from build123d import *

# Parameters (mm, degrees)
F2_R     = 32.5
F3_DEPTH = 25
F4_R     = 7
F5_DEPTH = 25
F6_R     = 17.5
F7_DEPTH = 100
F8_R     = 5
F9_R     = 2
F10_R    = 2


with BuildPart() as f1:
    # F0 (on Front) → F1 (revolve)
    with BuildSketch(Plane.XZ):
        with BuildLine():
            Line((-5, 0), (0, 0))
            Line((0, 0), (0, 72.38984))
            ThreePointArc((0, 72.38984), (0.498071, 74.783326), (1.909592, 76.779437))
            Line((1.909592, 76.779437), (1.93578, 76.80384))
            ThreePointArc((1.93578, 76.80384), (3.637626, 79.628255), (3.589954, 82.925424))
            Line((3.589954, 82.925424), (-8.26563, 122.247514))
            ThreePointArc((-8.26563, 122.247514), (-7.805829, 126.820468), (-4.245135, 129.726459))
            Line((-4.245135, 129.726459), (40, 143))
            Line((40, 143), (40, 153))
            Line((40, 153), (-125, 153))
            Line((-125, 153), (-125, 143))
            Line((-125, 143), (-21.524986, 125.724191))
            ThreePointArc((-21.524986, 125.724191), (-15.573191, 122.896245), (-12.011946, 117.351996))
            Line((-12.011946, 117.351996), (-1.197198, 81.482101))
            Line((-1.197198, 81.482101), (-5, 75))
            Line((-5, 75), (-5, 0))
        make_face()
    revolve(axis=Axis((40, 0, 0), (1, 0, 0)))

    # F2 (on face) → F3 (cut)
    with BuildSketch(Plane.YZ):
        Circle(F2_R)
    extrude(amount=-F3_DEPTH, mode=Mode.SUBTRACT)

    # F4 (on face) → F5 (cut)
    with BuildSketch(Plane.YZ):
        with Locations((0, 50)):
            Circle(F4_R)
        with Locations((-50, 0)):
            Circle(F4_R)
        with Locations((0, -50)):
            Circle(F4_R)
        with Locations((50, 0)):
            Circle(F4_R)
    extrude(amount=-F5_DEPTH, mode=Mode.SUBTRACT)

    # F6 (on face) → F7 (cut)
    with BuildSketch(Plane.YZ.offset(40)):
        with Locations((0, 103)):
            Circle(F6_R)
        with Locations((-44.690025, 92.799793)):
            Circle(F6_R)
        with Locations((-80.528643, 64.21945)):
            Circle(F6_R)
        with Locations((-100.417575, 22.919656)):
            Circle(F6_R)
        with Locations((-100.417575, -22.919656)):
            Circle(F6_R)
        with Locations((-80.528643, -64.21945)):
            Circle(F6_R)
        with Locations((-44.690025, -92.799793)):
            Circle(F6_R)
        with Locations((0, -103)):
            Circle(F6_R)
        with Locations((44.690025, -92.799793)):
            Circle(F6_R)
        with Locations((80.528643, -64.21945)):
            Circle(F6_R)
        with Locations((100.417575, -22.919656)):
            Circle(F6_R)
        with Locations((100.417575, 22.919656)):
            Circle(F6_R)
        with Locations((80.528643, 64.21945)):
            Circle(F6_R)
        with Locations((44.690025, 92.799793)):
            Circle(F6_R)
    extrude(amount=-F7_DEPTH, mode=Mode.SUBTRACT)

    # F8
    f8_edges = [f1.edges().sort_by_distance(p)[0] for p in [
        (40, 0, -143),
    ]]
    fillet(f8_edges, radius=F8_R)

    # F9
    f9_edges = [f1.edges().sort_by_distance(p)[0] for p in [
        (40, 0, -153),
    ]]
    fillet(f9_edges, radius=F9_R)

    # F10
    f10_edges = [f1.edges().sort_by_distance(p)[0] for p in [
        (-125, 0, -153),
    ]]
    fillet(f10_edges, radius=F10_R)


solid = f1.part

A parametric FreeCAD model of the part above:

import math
import FreeCAD as App
import Part
import Sketcher


def edges_at(feature, points):
    """Names of the edges that pass closest to the given points."""
    edges = feature.Shape.Edges
    near = lambda p: min(range(len(edges)), key=lambda i: edges[i].distToShape(Part.Vertex(*p))[0])
    return sorted({f"Edge{near(p) + 1}" for p in points})

doc = App.newDocument("Part")
body = doc.addObject("PartDesign::Body", "Body")

sketch1 = body.newObject("Sketcher::SketchObject", "Sketch")
sketch1.AttachmentSupport = (doc.getObject("XZ_Plane"), [""])
sketch1.MapMode = "FlatFace"
sketch1.addGeometry(Part.LineSegment(App.Vector(-5, 0, 0), App.Vector(0, 0, 0)), False)
sketch1.addGeometry(Part.LineSegment(App.Vector(0, 0, 0), App.Vector(0, 72.38984, 0)), False)
sketch1.addGeometry(Part.ArcOfCircle(Part.Circle(App.Vector(6.000002, 72.389839, 0), App.Vector(0, 0, 1), 6.000002), math.radians(132.979352), math.radians(179.999993)), False)
sketch1.addGeometry(Part.LineSegment(App.Vector(1.909592, 76.779437, 0), App.Vector(1.93578, 76.80384, 0)), False)
sketch1.addGeometry(Part.ArcOfCircle(Part.Circle(App.Vector(-2.154628, 81.193437, 0), App.Vector(0, 0, 1), 6), math.radians(-47.020658), math.radians(16.778019)), False)
sketch1.addGeometry(Part.LineSegment(App.Vector(3.589954, 82.925424, 0), App.Vector(-8.26563, 122.247514, 0)), False)
sketch1.addGeometry(Part.ArcOfCircle(Part.Circle(App.Vector(-2.521048, 123.979501, 0), App.Vector(0, 0, 1), 6), math.radians(106.699237), math.radians(196.778022)), False)
sketch1.addGeometry(Part.LineSegment(App.Vector(-4.245135, 129.726459, 0), App.Vector(40, 143, 0)), False)
sketch1.addGeometry(Part.LineSegment(App.Vector(40, 143, 0), App.Vector(40, 153, 0)), False)
sketch1.addGeometry(Part.LineSegment(App.Vector(40, 153, 0), App.Vector(-125, 153, 0)), False)
sketch1.addGeometry(Part.LineSegment(App.Vector(-125, 153, 0), App.Vector(-125, 143, 0)), False)
sketch1.addGeometry(Part.LineSegment(App.Vector(-125, 143, 0), App.Vector(-21.524986, 125.724191, 0)), False)
sketch1.addGeometry(Part.ArcOfCircle(Part.Circle(App.Vector(-23.501109, 113.88802, 0), App.Vector(0, 0, 1), 12), math.radians(16.778027), math.radians(80.521532)), False)
sketch1.addGeometry(Part.LineSegment(App.Vector(-12.011946, 117.351996, 0), App.Vector(-1.197198, 81.482101, 0)), False)
sketch1.addGeometry(Part.LineSegment(App.Vector(-1.197198, 81.482101, 0), App.Vector(-5, 75, 0)), False)
sketch1.addGeometry(Part.LineSegment(App.Vector(-5, 75, 0), App.Vector(-5, 0, 0)), False)
sketch1.addConstraint(Sketcher.Constraint("Coincident", 0, 2, 1, 1))
sketch1.addConstraint(Sketcher.Constraint("Tangent", 1, 2, 2, 2))
sketch1.addConstraint(Sketcher.Constraint("Tangent", 2, 1, 3, 1))
sketch1.addConstraint(Sketcher.Constraint("Tangent", 3, 2, 4, 1))
sketch1.addConstraint(Sketcher.Constraint("Tangent", 4, 2, 5, 1))
sketch1.addConstraint(Sketcher.Constraint("Tangent", 5, 2, 6, 2))
sketch1.addConstraint(Sketcher.Constraint("Tangent", 6, 1, 7, 1))
sketch1.addConstraint(Sketcher.Constraint("Coincident", 7, 2, 8, 1))
sketch1.addConstraint(Sketcher.Constraint("Coincident", 8, 2, 9, 1))
sketch1.addConstraint(Sketcher.Constraint("Coincident", 9, 2, 10, 1))
sketch1.addConstraint(Sketcher.Constraint("Coincident", 10, 2, 11, 1))
sketch1.addConstraint(Sketcher.Constraint("Tangent", 11, 2, 12, 2))
sketch1.addConstraint(Sketcher.Constraint("Tangent", 12, 1, 13, 1))
sketch1.addConstraint(Sketcher.Constraint("Coincident", 13, 2, 14, 1))
sketch1.addConstraint(Sketcher.Constraint("Coincident", 14, 2, 15, 1))
sketch1.addConstraint(Sketcher.Constraint("Coincident", 15, 2, 0, 1))
sketch1.addConstraint(Sketcher.Constraint("Horizontal", 0))
sketch1.addConstraint(Sketcher.Constraint("Vertical", 1))
sketch1.addConstraint(Sketcher.Constraint("Vertical", 8))
sketch1.addConstraint(Sketcher.Constraint("Horizontal", 9))
sketch1.addConstraint(Sketcher.Constraint("Vertical", 10))
sketch1.addConstraint(Sketcher.Constraint("Vertical", 15))
sketch1.addConstraint(Sketcher.Constraint("Coincident", 0, 2, -1, 1))
sketch1.addConstraint(Sketcher.Constraint("Equal", 2, 4))
sketch1.addConstraint(Sketcher.Constraint("Equal", 4, 6))
sketch1.addConstraint(Sketcher.Constraint("Parallel", 5, 13))
sketch1.addConstraint(Sketcher.Constraint("Horizontal", 7, 2, 10, 2))
sketch1.addConstraint(Sketcher.Constraint("Radius", 2, 6.000002))
sketch1.addConstraint(Sketcher.Constraint("Radius", 12, 12.0))
sketch1.addConstraint(Sketcher.Constraint("DistanceX", 0, 1, 0, 2, 5.0))
sketch1.addConstraint(Sketcher.Constraint("DistanceX", 9, 2, 9, 1, 165.0))
sketch1.addConstraint(Sketcher.Constraint("DistanceY", 8, 1, 8, 2, 10.0))
sketch1.addConstraint(Sketcher.Constraint("DistanceY", 15, 2, 15, 1, 75.0))
sketch1.addConstraint(Sketcher.Constraint("DistanceX", -1, 1, 7, 2, 40.0))
sketch1.addConstraint(Sketcher.Constraint("DistanceY", -1, 1, 7, 2, 143.0))
sketch1.addConstraint(Sketcher.Constraint("DistanceY", 2, 1, 4, 3, 4.414))
sketch1.addConstraint(Sketcher.Constraint("DistanceY", 1, 1, 1, 2, 72.38984))
sketch1.addConstraint(Sketcher.Constraint("DistanceY", -1, 1, 6, 3, 123.979501))
sketch1.addConstraint(Sketcher.Constraint("DistanceY", -1, 1, 13, 2, 81.482101))
sketch1.addConstraint(Sketcher.Constraint("DistanceX", 12, 3, 2, 1, 25.410701))
sketch1.addConstraint(Sketcher.Constraint("DistanceX", 14, 2, 13, 2, 3.802802))
sketch1.addConstraint(Sketcher.Constraint("Distance", 13, 37.464759))
sketch1.addConstraint(Sketcher.Constraint("DistanceX", 6, 3, -1, 1, 2.521048))
revolution = body.newObject("PartDesign::Revolution", "Revolution")
revolution.Profile = sketch1
revolution.ReferenceAxis = (sketch1, ["H_Axis"])
revolution.Angle = 360

sketch2 = body.newObject("Sketcher::SketchObject", "Sketch001")
sketch2.AttachmentSupport = (doc.getObject("YZ_Plane"), [""])
sketch2.MapMode = "FlatFace"
sketch2.addGeometry(Part.Circle(App.Vector(0, 0, 0), App.Vector(0, 0, 1), 32.5), False)
sketch2.addConstraint(Sketcher.Constraint("Coincident", 0, 3, -1, 1))
sketch2.addConstraint(Sketcher.Constraint("Diameter", 0, 65.0))
pocket1 = body.newObject("PartDesign::Pocket", "Pocket")
pocket1.Profile = sketch2
pocket1.Length = 25

sketch3 = body.newObject("Sketcher::SketchObject", "Sketch002")
sketch3.AttachmentSupport = (doc.getObject("YZ_Plane"), [""])
sketch3.MapMode = "FlatFace"
sketch3.addGeometry(Part.Circle(App.Vector(0, 50, 0), App.Vector(0, 0, 1), 7), False)
sketch3.addGeometry(Part.Circle(App.Vector(-50, 0, 0), App.Vector(0, 0, 1), 7), False)
sketch3.addGeometry(Part.Circle(App.Vector(0, -50, 0), App.Vector(0, 0, 1), 7), False)
sketch3.addGeometry(Part.Circle(App.Vector(50, 0, 0), App.Vector(0, 0, 1), 7), False)
sketch3.addConstraint(Sketcher.Constraint("Equal", 0, 1))
sketch3.addConstraint(Sketcher.Constraint("Equal", 1, 2))
sketch3.addConstraint(Sketcher.Constraint("Equal", 2, 3))
sketch3.addConstraint(Sketcher.Constraint("Symmetric", 0, 3, 2, 3, -1, 1))
sketch3.addConstraint(Sketcher.Constraint("Symmetric", 1, 3, 3, 3, -1, 1))
sketch3.addConstraint(Sketcher.Constraint("PointOnObject", 0, 3, -2))
sketch3.addConstraint(Sketcher.Constraint("PointOnObject", 1, 3, -1))
sketch3.addConstraint(Sketcher.Constraint("Diameter", 0, 14.0))
sketch3.addConstraint(Sketcher.Constraint("DistanceY", -1, 1, 0, 3, 50.0))
sketch3.addConstraint(Sketcher.Constraint("DistanceX", 1, 3, -1, 1, 50.0))
pocket2 = body.newObject("PartDesign::Pocket", "Pocket001")
pocket2.Profile = sketch3
pocket2.Length = 25

sketch4 = body.newObject("Sketcher::SketchObject", "Sketch003")
sketch4.AttachmentSupport = (doc.getObject("YZ_Plane"), [""])
sketch4.MapMode = "FlatFace"
sketch4.AttachmentOffset = App.Placement(App.Vector(0, 0, 40), App.Rotation())
sketch4.addGeometry(Part.Circle(App.Vector(0, 103, 0), App.Vector(0, 0, 1), 17.5), False)
sketch4.addGeometry(Part.Circle(App.Vector(-44.690025, 92.799793, 0), App.Vector(0, 0, 1), 17.5), False)
sketch4.addGeometry(Part.Circle(App.Vector(-80.528643, 64.21945, 0), App.Vector(0, 0, 1), 17.5), False)
sketch4.addGeometry(Part.Circle(App.Vector(-100.417575, 22.919656, 0), App.Vector(0, 0, 1), 17.5), False)
sketch4.addGeometry(Part.Circle(App.Vector(-100.417575, -22.919656, 0), App.Vector(0, 0, 1), 17.5), False)
sketch4.addGeometry(Part.Circle(App.Vector(-80.528643, -64.21945, 0), App.Vector(0, 0, 1), 17.5), False)
sketch4.addGeometry(Part.Circle(App.Vector(-44.690025, -92.799793, 0), App.Vector(0, 0, 1), 17.5), False)
sketch4.addGeometry(Part.Circle(App.Vector(0, -103, 0), App.Vector(0, 0, 1), 17.5), False)
sketch4.addGeometry(Part.Circle(App.Vector(44.690025, -92.799793, 0), App.Vector(0, 0, 1), 17.5), False)
sketch4.addGeometry(Part.Circle(App.Vector(80.528643, -64.21945, 0), App.Vector(0, 0, 1), 17.5), False)
sketch4.addGeometry(Part.Circle(App.Vector(100.417575, -22.919656, 0), App.Vector(0, 0, 1), 17.5), False)
sketch4.addGeometry(Part.Circle(App.Vector(100.417575, 22.919656, 0), App.Vector(0, 0, 1), 17.5), False)
sketch4.addGeometry(Part.Circle(App.Vector(80.528643, 64.21945, 0), App.Vector(0, 0, 1), 17.5), False)
sketch4.addGeometry(Part.Circle(App.Vector(44.690025, 92.799793, 0), App.Vector(0, 0, 1), 17.5), False)
sketch4.addConstraint(Sketcher.Constraint("Equal", 0, 1))
sketch4.addConstraint(Sketcher.Constraint("Equal", 1, 2))
sketch4.addConstraint(Sketcher.Constraint("Equal", 2, 3))
sketch4.addConstraint(Sketcher.Constraint("Equal", 3, 4))
sketch4.addConstraint(Sketcher.Constraint("Equal", 4, 5))
sketch4.addConstraint(Sketcher.Constraint("Equal", 5, 6))
sketch4.addConstraint(Sketcher.Constraint("Equal", 6, 7))
sketch4.addConstraint(Sketcher.Constraint("Equal", 7, 8))
sketch4.addConstraint(Sketcher.Constraint("Equal", 8, 9))
sketch4.addConstraint(Sketcher.Constraint("Equal", 9, 10))
sketch4.addConstraint(Sketcher.Constraint("Equal", 10, 11))
sketch4.addConstraint(Sketcher.Constraint("Equal", 11, 12))
sketch4.addConstraint(Sketcher.Constraint("Equal", 12, 13))
sketch4.addConstraint(Sketcher.Constraint("Symmetric", 0, 3, 7, 3, -1, 1))
sketch4.addConstraint(Sketcher.Constraint("Symmetric", 1, 3, 8, 3, -1, 1))
sketch4.addConstraint(Sketcher.Constraint("Symmetric", 2, 3, 9, 3, -1, 1))
sketch4.addConstraint(Sketcher.Constraint("Symmetric", 3, 3, 10, 3, -1, 1))
sketch4.addConstraint(Sketcher.Constraint("Symmetric", 4, 3, 11, 3, -1, 1))
sketch4.addConstraint(Sketcher.Constraint("Symmetric", 5, 3, 12, 3, -1, 1))
sketch4.addConstraint(Sketcher.Constraint("Symmetric", 6, 3, 13, 3, -1, 1))
sketch4.addConstraint(Sketcher.Constraint("Symmetric", 6, 3, 8, 3, -2))
sketch4.addConstraint(Sketcher.Constraint("Symmetric", 5, 3, 9, 3, -2))
sketch4.addConstraint(Sketcher.Constraint("Symmetric", 4, 3, 10, 3, -2))
sketch4.addConstraint(Sketcher.Constraint("PointOnObject", 0, 3, -2))
sketch4.addConstraint(Sketcher.Constraint("Diameter", 0, 35.0))
sketch4.addConstraint(Sketcher.Constraint("DistanceY", -1, 1, 0, 3, 103.0))
sketch4.addConstraint(Sketcher.Constraint("DistanceY", 5, 3, 2, 3, 128.4389))
sketch4.addConstraint(Sketcher.Constraint("DistanceX", 4, 3, 8, 3, 145.1076))
sketch4.addConstraint(Sketcher.Constraint("DistanceX", 2, 3, 1, 3, 35.838618))
sketch4.addConstraint(Sketcher.Constraint("DistanceX", 3, 3, 2, 3, 19.888932))
sketch4.addConstraint(Sketcher.Constraint("DistanceY", 4, 3, 1, 3, 115.719449))
sketch4.addConstraint(Sketcher.Constraint("DistanceY", -1, 1, 1, 3, 92.799793))
pocket3 = body.newObject("PartDesign::Pocket", "Pocket002")
pocket3.Profile = sketch4
pocket3.Length = 100
doc.recompute()

fillet = body.newObject("PartDesign::Fillet", "Fillet")
fillet.Base = (pocket3, edges_at(pocket3, [(40, 0, -143)]))
fillet.Radius = 5
doc.recompute()

fillet2 = body.newObject("PartDesign::Fillet", "Fillet001")
fillet2.Base = (fillet, edges_at(fillet, [(40, 0, -153)]))
fillet2.Radius = 2
doc.recompute()

fillet3 = body.newObject("PartDesign::Fillet", "Fillet002")
fillet3.Base = (fillet2, edges_at(fillet2, [(-125, 0, -153)]))
fillet3.Radius = 2

doc.recompute()
